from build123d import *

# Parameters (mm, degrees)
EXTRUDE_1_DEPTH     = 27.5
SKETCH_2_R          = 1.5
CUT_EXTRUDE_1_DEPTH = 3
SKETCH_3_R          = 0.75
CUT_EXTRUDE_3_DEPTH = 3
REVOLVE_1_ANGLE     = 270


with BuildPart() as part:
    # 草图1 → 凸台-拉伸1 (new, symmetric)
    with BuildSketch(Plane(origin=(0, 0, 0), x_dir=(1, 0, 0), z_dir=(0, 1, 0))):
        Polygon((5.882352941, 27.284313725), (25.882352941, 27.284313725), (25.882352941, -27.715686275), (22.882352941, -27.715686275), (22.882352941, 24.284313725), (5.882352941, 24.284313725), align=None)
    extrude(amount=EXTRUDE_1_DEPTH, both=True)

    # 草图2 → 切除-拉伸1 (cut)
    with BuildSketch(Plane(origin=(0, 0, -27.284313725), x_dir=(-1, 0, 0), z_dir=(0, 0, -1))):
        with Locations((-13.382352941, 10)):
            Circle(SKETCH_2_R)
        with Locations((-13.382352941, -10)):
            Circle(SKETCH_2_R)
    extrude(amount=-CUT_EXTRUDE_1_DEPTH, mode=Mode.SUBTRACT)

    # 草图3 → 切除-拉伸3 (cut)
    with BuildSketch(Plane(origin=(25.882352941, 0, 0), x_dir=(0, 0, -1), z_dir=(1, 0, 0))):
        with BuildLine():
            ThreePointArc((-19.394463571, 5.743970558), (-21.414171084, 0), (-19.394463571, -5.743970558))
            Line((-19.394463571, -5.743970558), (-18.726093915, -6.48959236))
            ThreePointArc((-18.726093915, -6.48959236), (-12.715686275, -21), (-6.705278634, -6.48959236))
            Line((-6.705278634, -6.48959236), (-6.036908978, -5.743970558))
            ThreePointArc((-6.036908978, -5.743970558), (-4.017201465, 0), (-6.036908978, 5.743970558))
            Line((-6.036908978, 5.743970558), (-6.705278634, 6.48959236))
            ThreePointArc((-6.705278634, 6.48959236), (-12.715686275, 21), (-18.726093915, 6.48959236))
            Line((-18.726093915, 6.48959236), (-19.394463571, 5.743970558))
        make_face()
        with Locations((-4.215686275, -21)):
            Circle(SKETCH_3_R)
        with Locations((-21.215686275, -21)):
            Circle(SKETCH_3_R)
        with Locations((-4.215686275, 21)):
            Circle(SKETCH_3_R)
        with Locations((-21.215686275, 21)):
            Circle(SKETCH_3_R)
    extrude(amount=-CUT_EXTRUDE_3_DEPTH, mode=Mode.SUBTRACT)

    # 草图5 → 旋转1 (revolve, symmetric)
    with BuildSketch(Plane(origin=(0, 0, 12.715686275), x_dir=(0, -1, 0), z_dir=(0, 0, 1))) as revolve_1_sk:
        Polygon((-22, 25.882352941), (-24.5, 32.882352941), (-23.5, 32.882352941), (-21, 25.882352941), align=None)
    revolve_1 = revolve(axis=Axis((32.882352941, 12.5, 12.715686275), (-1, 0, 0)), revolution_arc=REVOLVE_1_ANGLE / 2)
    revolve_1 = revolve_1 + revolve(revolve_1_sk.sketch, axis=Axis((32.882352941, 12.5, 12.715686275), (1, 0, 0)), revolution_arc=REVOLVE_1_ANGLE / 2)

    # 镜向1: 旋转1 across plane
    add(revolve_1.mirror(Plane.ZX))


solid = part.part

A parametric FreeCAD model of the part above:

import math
import FreeCAD as App
import Part
import Sketcher

V = App.Vector
Q = App.Units.Quantity

doc = App.newDocument("Part")
body = doc.addObject("PartDesign::Body", "Body")

# Sketch on XZ plane
sketch1 = body.newObject("Sketcher::SketchObject", "Sketch")
sketch1.AttachmentSupport = (doc.getObject("XZ_Plane"), [""])
sketch1.MapMode = "FlatFace"
sketch1.addGeometry(Part.LineSegment(V(25.9, -27.3, 0), V(5.9, -27.3, 0)), False)
sketch1.addGeometry(Part.LineSegment(V(5.9, -27.3, 0), V(5.9, -24.3, 0)), False)
sketch1.addGeometry(Part.LineSegment(V(5.9, -24.3, 0), V(22.9, -24.3, 0)), False)
sketch1.addGeometry(Part.LineSegment(V(22.9, -24.3, 0), V(22.9, 27.7, 0)), False)
sketch1.addGeometry(Part.LineSegment(V(22.9, 27.7, 0), V(25.9, 27.7, 0)), False)
sketch1.addGeometry(Part.LineSegment(V(25.9, 27.7, 0), V(25.9, -27.3, 0)), False)
sketch1.addConstraint(Sketcher.Constraint("Coincident", 0, 2, 1, 1))
sketch1.addConstraint(Sketcher.Constraint("Coincident", 1, 2, 2, 1))
sketch1.addConstraint(Sketcher.Constraint("Coincident", 2, 2, 3, 1))
sketch1.addConstraint(Sketcher.Constraint("Coincident", 3, 2, 4, 1))
sketch1.addConstraint(Sketcher.Constraint("Coincident", 4, 2, 5, 1))
sketch1.addConstraint(Sketcher.Constraint("Coincident", 5, 2, 0, 1))
sketch1.addConstraint(Sketcher.Constraint("Horizontal", 0))
sketch1.addConstraint(Sketcher.Constraint("Vertical", 1))
sketch1.addConstraint(Sketcher.Constraint("Horizontal", 2))
sketch1.addConstraint(Sketcher.Constraint("Vertical", 3))
sketch1.addConstraint(Sketcher.Constraint("Horizontal", 4))
sketch1.addConstraint(Sketcher.Constraint("Vertical", 5))
sketch1.addConstraint(Sketcher.Constraint("Equal", 4, 1))
sketch1.addConstraint(Sketcher.Constraint("DistanceX", 0, 2, 0, 1, Q("20 mm")))
sketch1.addConstraint(Sketcher.Constraint("DistanceX", 2, 1, 2, 2, Q("17 mm")))
sketch1.addConstraint(Sketcher.Constraint("DistanceY", 3, 1, 3, 2, Q("52 mm")))
sketch1.addConstraint(Sketcher.Constraint("DistanceX", -1, 1, 0, 2, Q("5.882353 mm")))
sketch1.addConstraint(Sketcher.Constraint("DistanceY", 0, 2, -1, 1, Q("27.284314 mm")))
pad1 = body.newObject("PartDesign::Pad", "Pad")
pad1.Profile = sketch1
pad1.Length = 55
pad1.Midplane = True

# Sketch on XY plane
sketch2 = body.newObject("Sketcher::SketchObject", "Sketch001")
sketch2.AttachmentSupport = (doc.getObject("XY_Plane"), [""])
sketch2.MapMode = "FlatFace"
sketch2.AttachmentOffset = App.Placement(V(0, 0, -27.284314), App.Rotation())
sketch2.addGeometry(Part.Circle(V(13.4, 10, 0), V(0, 0, 1), 1.5), False)
sketch2.addGeometry(Part.Circle(V(13.4, -10, 0), V(0, 0, 1), 1.5), False)
sketch2.addConstraint(Sketcher.Constraint("Equal", 0, 1))
sketch2.addConstraint(Sketcher.Constraint("Symmetric", 0, 3, 1, 3, -1))
sketch2.addConstraint(Sketcher.Constraint("Diameter", 0, Q("3 mm")))
sketch2.addConstraint(Sketcher.Constraint("DistanceY", -1, 1, 0, 3, Q("10 mm")))
sketch2.addConstraint(Sketcher.Constraint("DistanceX", -1, 1, 0, 3, Q("13.382353 mm")))
pocket1 = body.newObject("PartDesign::Pocket", "Pocket")
pocket1.Profile = sketch2
pocket1.Length = 3
pocket1.Reversed = True

# Sketch on YZ plane
sketch3 = body.newObject("Sketcher::SketchObject", "Sketch002")
sketch3.AttachmentSupport = (doc.getObject("YZ_Plane"), [""])
sketch3.MapMode = "FlatFace"
sketch3.AttachmentOffset = App.Placement(V(0, 0, 25.882353), App.Rotation())
sketch3.addGeometry(Part.ArcOfCircle(Part.Circle(V(0, 12.2, 0), V(0, 0, 1), 9.2), math.radians(51), math.radians(129)), False)
sketch3.addGeometry(Part.LineSegment(V(-5.7, 19.4, 0), V(-6.5, 18.7, 0)), False)
sketch3.addGeometry(Part.ArcOfCircle(Part.Circle(V(-12.5, 12.7, 0), V(0, 0, 1), 8.5), math.radians(45), math.radians(315)), False)
sketch3.addGeometry(Part.LineSegment(V(-6.5, 6.7, 0), V(-5.7, 6, 0)), False)
sketch3.addGeometry(Part.ArcOfCircle(Part.Circle(V(0, 13.2, 0), V(0, 0, 1), 9.2), math.radians(-129), math.radians(-51)), False)
sketch3.addGeometry(Part.LineSegment(V(5.7, 6, 0), V(6.5, 6.7, 0)), False)
sketch3.addGeometry(Part.ArcOfCircle(Part.Circle(V(12.5, 12.7, 0), V(0, 0, 1), 8.5), math.radians(-135), math.radians(135)), False)
sketch3.addGeometry(Part.LineSegment(V(6.5, 18.7, 0), V(5.7, 19.4, 0)), False)
sketch3.addGeometry(Part.Circle(V(-21, 4.2, 0), V(0, 0, 1), 0.8), False)
sketch3.addGeometry(Part.Circle(V(-21, 21.2, 0), V(0, 0, 1), 0.8), False)
sketch3.addGeometry(Part.Circle(V(21, 4.2, 0), V(0, 0, 1), 0.8), False)
sketch3.addGeometry(Part.Circle(V(21, 21.2, 0), V(0, 0, 1), 0.8), False)
sketch3.addConstraint(Sketcher.Constraint("Coincident", 0, 2, 1, 1))
sketch3.addConstraint(Sketcher.Constraint("Coincident", 1, 2, 2, 1))
sketch3.addConstraint(Sketcher.Constraint("Coincident", 2, 2, 3, 1))
sketch3.addConstraint(Sketcher.Constraint("Coincident", 3, 2, 4, 1))
sketch3.addConstraint(Sketcher.Constraint("Coincident", 4, 2, 5, 1))
sketch3.addConstraint(Sketcher.Constraint("Coincident", 5, 2, 6, 1))
sketch3.addConstraint(Sketcher.Constraint("Coincident", 6, 2, 7, 1))
sketch3.addConstraint(Sketcher.Constraint("Coincident", 7, 2, 0, 1))
sketch3.addConstraint(Sketcher.Constraint("Equal", 0, 4))
sketch3.addConstraint(Sketcher.Constraint("Equal", 2, 6))
sketch3.addConstraint(Sketcher.Constraint("Equal", 8, 9))
sketch3.addConstraint(Sketcher.Constraint("Equal", 9, 10))
sketch3.addConstraint(Sketcher.Constraint("Equal", 10, 11))
sketch3.addConstraint(Sketcher.Constraint("Symmetric", 2, 3, 6, 3, -2))
sketch3.addConstraint(Sketcher.Constraint("Symmetric", 8, 3, 10, 3, -2))
sketch3.addConstraint(Sketcher.Constraint("Symmetric", 9, 3, 11, 3, -2))
sketch3.addConstraint(Sketcher.Constraint("Symmetric", 3, 2, 4, 2, -2))
sketch3.addConstraint(Sketcher.Constraint("Symmetric", 0, 2, 7, 2, -2))
sketch3.addConstraint(Sketcher.Constraint("Parallel", 1, 5))
sketch3.addConstraint(Sketcher.Constraint("Parallel", 3, 7))
sketch3.addConstraint(Sketcher.Constraint("Horizontal", 2, 2, 5, 2))
sketch3.addConstraint(Sketcher.Constraint("Vertical", 8, 3, 9, 3))
sketch3.addConstraint(Sketcher.Constraint("Vertical", 1, 2, 2, 2))
sketch3.addConstraint(Sketcher.Constraint("Vertical", 0, 2, 3, 2))
sketch3.addConstraint(Sketcher.Constraint("Diameter", 8, Q("1.5 mm")))
sketch3.addConstraint(Sketcher.Constraint("Radius", 2, Q("8.5 mm")))
sketch3.addConstraint(Sketcher.Constraint("DistanceX", 8, 3, -1, 1, Q("21 mm")))
sketch3.addConstraint(Sketcher.Constraint("DistanceX", 2, 3, 6, 3, Q("25 mm")))
sketch3.addConstraint(Sketcher.Constraint("DistanceY", 8, 3, 9, 3, Q("17 mm")))
sketch3.addConstraint(Sketcher.Constraint("DistanceY", 8, 3, 2, 3, Q("8.5 mm")))
sketch3.addConstraint(Sketcher.Constraint("Radius", 0, Q("9.17767 mm")))
sketch3.addConstraint(Sketcher.Constraint("DistanceY", -1, 1, 0, 3, Q("12.236502 mm")))
sketch3.addConstraint(Sketcher.Constraint("DistanceY", -1, 1, 4, 3, Q("13.194871 mm")))
sketch3.addConstraint(Sketcher.Constraint("DistanceX", 0, 2, -1, 1, Q("5.743971 mm")))
sketch3.addConstraint(Sketcher.Constraint("DistanceY", -1, 1, 2, 2, Q("6.705279 mm")))
pocket2 = body.newObject("PartDesign::Pocket", "Pocket001")
pocket2.Profile = sketch3
pocket2.Length = 3

# Sketch on XY plane
sketch4 = body.newObject("Sketcher::SketchObject", "Sketch003")
sketch4.AttachmentSupport = (doc.getObject("XY_Plane"), [""])
sketch4.MapMode = "FlatFace"
sketch4.AttachmentOffset = App.Placement(V(0, 0, 12.715686), App.Rotation())
sketch4.addGeometry(Part.LineSegment(V(32.9, 24.5, 0), V(25.9, 22, 0)), False)
sketch4.addGeometry(Part.LineSegment(V(25.9, 22, 0), V(25.9, 21, 0)), False)
sketch4.addGeometry(Part.LineSegment(V(25.9, 21, 0), V(32.9, 23.5, 0)), False)
sketch4.addGeometry(Part.LineSegment(V(32.9, 23.5, 0), V(32.9, 24.5, 0)), False)
sketch4.addGeometry(Part.LineSegment(V(32.9, 12.5, 0), V(25.9, 12.5, 0)), True)  # axis
sketch4.addConstraint(Sketcher.Constraint("Coincident", 0, 2, 1, 1))
sketch4.addConstraint(Sketcher.Constraint("Coincident", 1, 2, 2, 1))
sketch4.addConstraint(Sketcher.Constraint("Coincident", 2, 2, 3, 1))
sketch4.addConstraint(Sketcher.Constraint("Coincident", 3, 2, 0, 1))
sketch4.addConstraint(Sketcher.Constraint("Vertical", 1))
sketch4.addConstraint(Sketcher.Constraint("Vertical", 3))
sketch4.addConstraint(Sketcher.Constraint("Horizontal", 4))
sketch4.addConstraint(Sketcher.Constraint("Parallel", 0, 2))
sketch4.addConstraint(Sketcher.Constraint("Vertical", 3, 2, 4, 1))
sketch4.addConstraint(Sketcher.Constraint("Vertical", 1, 2, 4, 2))
sketch4.addConstraint(Sketcher.Constraint("DistanceX", 4, 2, 4, 1, Q("7 mm")))
sketch4.addConstraint(Sketcher.Constraint("DistanceY", 1, 2, 1, 1, Q("1 mm")))
sketch4.addConstraint(Sketcher.Constraint("DistanceY", -1, 1, 0, 2, Q("22 mm")))
sketch4.addConstraint(Sketcher.Constraint("DistanceY", 4, 1, 2, 2, Q("11 mm")))
sketch4.addConstraint(Sketcher.Constraint("DistanceY", -1, 1, 2, 2, Q("23.5 mm")))
sketch4.addConstraint(Sketcher.Constraint("DistanceX", -1, 1, 0, 2, Q("25.882353 mm")))
revolution = body.newObject("PartDesign::Revolution", "Revolution")
revolution.Profile = sketch4
revolution.ReferenceAxis = (sketch4, ["Axis0"])
revolution.Angle = 135

# Sketch on XY plane
sketch5 = body.newObject("Sketcher::SketchObject", "Sketch004")
sketch5.AttachmentSupport = (doc.getObject("XY_Plane"), [""])
sketch5.MapMode = "FlatFace"
sketch5.AttachmentOffset = App.Placement(V(0, 0, 12.715686), App.Rotation())
sketch5.addGeometry(Part.LineSegment(V(32.9, 24.5, 0), V(25.9, 22, 0)), False)
sketch5.addGeometry(Part.LineSegment(V(25.9, 22, 0), V(25.9, 21, 0)), False)
sketch5.addGeometry(Part.LineSegment(V(25.9, 21, 0), V(32.9, 23.5, 0)), False)
sketch5.addGeometry(Part.LineSegment(V(32.9, 23.5, 0), V(32.9, 24.5, 0)), False)
sketch5.addGeometry(Part.LineSegment(V(25.9, 12.5, 0), V(32.9, 12.5, 0)), True)  # axis
sketch5.addConstraint(Sketcher.Constraint("Coincident", 0, 2, 1, 1))
sketch5.addConstraint(Sketcher.Constraint("Coincident", 1, 2, 2, 1))
sketch5.addConstraint(Sketcher.Constraint("Coincident", 2, 2, 3, 1))
sketch5.addConstraint(Sketcher.Constraint("Coincident", 3, 2, 0, 1))
sketch5.addConstraint(Sketcher.Constraint("Vertical", 1))
sketch5.addConstraint(Sketcher.Constraint("Vertical", 3))
sketch5.addConstraint(Sketcher.Constraint("Horizontal", 4))
sketch5.addConstraint(Sketcher.Constraint("Parallel", 0, 2))
sketch5.addConstraint(Sketcher.Constraint("Vertical", 1, 2, 4, 1))
sketch5.addConstraint(Sketcher.Constraint("Vertical", 3, 2, 4, 2))
sketch5.addConstraint(Sketcher.Constraint("DistanceX", 4, 1, 4, 2, Q("7 mm")))
sketch5.addConstraint(Sketcher.Constraint("DistanceY", 1, 2, 1, 1, Q("1 mm")))
sketch5.addConstraint(Sketcher.Constraint("DistanceY", -1, 1, 0, 2, Q("22 mm")))
sketch5.addConstraint(Sketcher.Constraint("DistanceY", 4, 1, 2, 2, Q("11 mm")))
sketch5.addConstraint(Sketcher.Constraint("DistanceY", -1, 1, 2, 2, Q("23.5 mm")))
sketch5.addConstraint(Sketcher.Constraint("DistanceX", -1, 1, 0, 2, Q("25.882353 mm")))
revolution2 = body.newObject("PartDesign::Revolution", "Revolution001")
revolution2.Profile = sketch5
revolution2.ReferenceAxis = (sketch5, ["Axis0"])
revolution2.Angle = 135
doc.recompute()

mirrored = body.newObject("PartDesign::Mirrored", "Mirrored")
mirrored.Originals = [revolution, revolution2]
mirrored.MirrorPlane = (doc.getObject("XZ_Plane"), [""])
body.Tip = mirrored

doc.recompute()
